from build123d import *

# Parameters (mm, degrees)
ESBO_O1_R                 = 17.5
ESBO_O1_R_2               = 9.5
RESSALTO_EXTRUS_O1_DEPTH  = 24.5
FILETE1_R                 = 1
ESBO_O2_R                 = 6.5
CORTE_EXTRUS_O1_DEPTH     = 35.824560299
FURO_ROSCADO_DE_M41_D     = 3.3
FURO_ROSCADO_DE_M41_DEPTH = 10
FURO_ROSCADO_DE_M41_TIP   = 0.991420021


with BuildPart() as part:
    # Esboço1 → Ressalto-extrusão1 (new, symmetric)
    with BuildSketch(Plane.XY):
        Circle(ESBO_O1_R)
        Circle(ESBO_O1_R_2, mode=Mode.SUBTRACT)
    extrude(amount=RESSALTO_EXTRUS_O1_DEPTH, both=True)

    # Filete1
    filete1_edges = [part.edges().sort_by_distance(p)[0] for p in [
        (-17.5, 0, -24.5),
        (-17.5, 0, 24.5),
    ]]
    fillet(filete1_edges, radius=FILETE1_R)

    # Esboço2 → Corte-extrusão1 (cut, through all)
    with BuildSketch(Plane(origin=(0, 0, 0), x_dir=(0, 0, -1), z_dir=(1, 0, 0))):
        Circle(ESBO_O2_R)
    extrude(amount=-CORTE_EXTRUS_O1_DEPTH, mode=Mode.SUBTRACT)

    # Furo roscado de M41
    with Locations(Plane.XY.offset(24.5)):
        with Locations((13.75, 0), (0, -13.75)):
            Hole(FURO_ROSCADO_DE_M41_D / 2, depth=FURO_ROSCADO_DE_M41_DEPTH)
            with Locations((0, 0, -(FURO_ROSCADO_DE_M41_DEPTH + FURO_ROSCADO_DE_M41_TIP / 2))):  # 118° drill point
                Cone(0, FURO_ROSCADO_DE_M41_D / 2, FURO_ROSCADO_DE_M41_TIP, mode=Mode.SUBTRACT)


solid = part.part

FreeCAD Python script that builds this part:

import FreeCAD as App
import Part
import Sketcher


def edges_at(feature, points):
    """Names of the edges that pass closest to the given points."""
    edges = feature.Shape.Edges
    near = lambda p: min(range(len(edges)), key=lambda i: edges[i].distToShape(Part.Vertex(*p))[0])
    return sorted({f"Edge{near(p) + 1}" for p in points})

doc = App.newDocument("Part")
params = doc.addObject("Spreadsheet::Sheet", "Params")
for row, (alias, value) in enumerate([
    ("sketch1_diameter", "35 mm"),
    ("sketch1_diameter2", "19 mm"),
    ("pad1_length", "49 mm"),
    ("fillet_radius", "1 mm"),
    ("sketch2_diameter", "13 mm"),
    ("sketch3_diameter", "3.3 mm"),
    ("hole_diameter", "3.3 mm"),
    ("hole_depth", "10 mm"),
], start=1):
    params.set(f"A{row}", alias)
    params.set(f"B{row}", "=" + value)
    params.setAlias(f"B{row}", alias)

body = doc.addObject("PartDesign::Body", "Body")

# Sketch on XY plane
sketch1 = body.newObject("Sketcher::SketchObject", "Sketch")
sketch1.AttachmentSupport = (doc.getObject("XY_Plane"), [""])
sketch1.MapMode = "FlatFace"
sketch1.addGeometry(Part.Circle(App.Vector(0, 0, 0), App.Vector(0, 0, 1), 18), False)
sketch1.addGeometry(Part.Circle(App.Vector(0, 0, 0), App.Vector(0, 0, 1), 10), False)
sketch1.addConstraint(Sketcher.Constraint("Coincident", 0, 3, -1, 1))
sketch1.addConstraint(Sketcher.Constraint("Coincident", 1, 3, -1, 1))
sketch1.addConstraint(Sketcher.Constraint("Diameter", 0, 35.0))
sketch1.addConstraint(Sketcher.Constraint("Diameter", 1, 19.0))
sketch1.setExpression("Constraints[2]", "Params.sketch1_diameter")
sketch1.setExpression("Constraints[3]", "Params.sketch1_diameter2")
pad1 = body.newObject("PartDesign::Pad", "Pad")
pad1.Profile = sketch1
pad1.setExpression("Length", "Params.pad1_length")
pad1.Midplane = True
doc.recompute()

fillet = body.newObject("PartDesign::Fillet", "Fillet")
fillet.Base = (pad1, edges_at(pad1, [(-17.5, 0, -24.5), (-17.5, 0, 24.5)]))
fillet.setExpression("Radius", "Params.fillet_radius")

# Sketch on YZ plane
sketch2 = body.newObject("Sketcher::SketchObject", "Sketch001")
sketch2.AttachmentSupport = (doc.getObject("YZ_Plane"), [""])
sketch2.MapMode = "FlatFace"
sketch2.addGeometry(Part.Circle(App.Vector(0, 0, 0), App.Vector(0, 0, 1), 6), False)
sketch2.addConstraint(Sketcher.Constraint("Coincident", 0, 3, -1, 1))
sketch2.addConstraint(Sketcher.Constraint("Diameter", 0, 13.0))
sketch2.setExpression("Constraints[1]", "Params.sketch2_diameter")
pocket1 = body.newObject("PartDesign::Pocket", "Pocket")
pocket1.Profile = sketch2
pocket1.Type = "ThroughAll"

# Sketch on XY plane
sketch3 = body.newObject("Sketcher::SketchObject", "Sketch002")
sketch3.AttachmentSupport = (doc.getObject("XY_Plane"), [""])
sketch3.MapMode = "FlatFace"
sketch3.AttachmentOffset = App.Placement(App.Vector(0, 0, 24.5), App.Rotation())
sketch3.addGeometry(Part.Circle(App.Vector(13.8, 0, 0), App.Vector(0, 0, 1), 1.6), False)
sketch3.addGeometry(Part.Circle(App.Vector(0, -13.8, 0), App.Vector(0, 0, 1), 1.6), False)
sketch3.addConstraint(Sketcher.Constraint("Equal", 0, 1))
sketch3.addConstraint(Sketcher.Constraint("PointOnObject", 0, 3, -1))
sketch3.addConstraint(Sketcher.Constraint("PointOnObject", 1, 3, -2))
sketch3.addConstraint(Sketcher.Constraint("Diameter", 0, 3.3))
sketch3.addConstraint(Sketcher.Constraint("DistanceX", -1, 1, 0, 3, 13.75))
sketch3.addConstraint(Sketcher.Constraint("DistanceY", 1, 3, -1, 1, 13.75))
sketch3.setExpression("Constraints[3]", "Params.sketch3_diameter")
doc.recompute()
hole = body.newObject("PartDesign::Hole", "Hole")
hole.Profile = sketch3
hole.ThreadType = "None"
hole.setExpression("Diameter", "Params.hole_diameter")
hole.DepthType = "Dimension"
hole.setExpression("Depth", "Params.hole_depth")
hole.DrillPoint = "Angled"
hole.DrillPointAngle = 118

doc.recompute()
